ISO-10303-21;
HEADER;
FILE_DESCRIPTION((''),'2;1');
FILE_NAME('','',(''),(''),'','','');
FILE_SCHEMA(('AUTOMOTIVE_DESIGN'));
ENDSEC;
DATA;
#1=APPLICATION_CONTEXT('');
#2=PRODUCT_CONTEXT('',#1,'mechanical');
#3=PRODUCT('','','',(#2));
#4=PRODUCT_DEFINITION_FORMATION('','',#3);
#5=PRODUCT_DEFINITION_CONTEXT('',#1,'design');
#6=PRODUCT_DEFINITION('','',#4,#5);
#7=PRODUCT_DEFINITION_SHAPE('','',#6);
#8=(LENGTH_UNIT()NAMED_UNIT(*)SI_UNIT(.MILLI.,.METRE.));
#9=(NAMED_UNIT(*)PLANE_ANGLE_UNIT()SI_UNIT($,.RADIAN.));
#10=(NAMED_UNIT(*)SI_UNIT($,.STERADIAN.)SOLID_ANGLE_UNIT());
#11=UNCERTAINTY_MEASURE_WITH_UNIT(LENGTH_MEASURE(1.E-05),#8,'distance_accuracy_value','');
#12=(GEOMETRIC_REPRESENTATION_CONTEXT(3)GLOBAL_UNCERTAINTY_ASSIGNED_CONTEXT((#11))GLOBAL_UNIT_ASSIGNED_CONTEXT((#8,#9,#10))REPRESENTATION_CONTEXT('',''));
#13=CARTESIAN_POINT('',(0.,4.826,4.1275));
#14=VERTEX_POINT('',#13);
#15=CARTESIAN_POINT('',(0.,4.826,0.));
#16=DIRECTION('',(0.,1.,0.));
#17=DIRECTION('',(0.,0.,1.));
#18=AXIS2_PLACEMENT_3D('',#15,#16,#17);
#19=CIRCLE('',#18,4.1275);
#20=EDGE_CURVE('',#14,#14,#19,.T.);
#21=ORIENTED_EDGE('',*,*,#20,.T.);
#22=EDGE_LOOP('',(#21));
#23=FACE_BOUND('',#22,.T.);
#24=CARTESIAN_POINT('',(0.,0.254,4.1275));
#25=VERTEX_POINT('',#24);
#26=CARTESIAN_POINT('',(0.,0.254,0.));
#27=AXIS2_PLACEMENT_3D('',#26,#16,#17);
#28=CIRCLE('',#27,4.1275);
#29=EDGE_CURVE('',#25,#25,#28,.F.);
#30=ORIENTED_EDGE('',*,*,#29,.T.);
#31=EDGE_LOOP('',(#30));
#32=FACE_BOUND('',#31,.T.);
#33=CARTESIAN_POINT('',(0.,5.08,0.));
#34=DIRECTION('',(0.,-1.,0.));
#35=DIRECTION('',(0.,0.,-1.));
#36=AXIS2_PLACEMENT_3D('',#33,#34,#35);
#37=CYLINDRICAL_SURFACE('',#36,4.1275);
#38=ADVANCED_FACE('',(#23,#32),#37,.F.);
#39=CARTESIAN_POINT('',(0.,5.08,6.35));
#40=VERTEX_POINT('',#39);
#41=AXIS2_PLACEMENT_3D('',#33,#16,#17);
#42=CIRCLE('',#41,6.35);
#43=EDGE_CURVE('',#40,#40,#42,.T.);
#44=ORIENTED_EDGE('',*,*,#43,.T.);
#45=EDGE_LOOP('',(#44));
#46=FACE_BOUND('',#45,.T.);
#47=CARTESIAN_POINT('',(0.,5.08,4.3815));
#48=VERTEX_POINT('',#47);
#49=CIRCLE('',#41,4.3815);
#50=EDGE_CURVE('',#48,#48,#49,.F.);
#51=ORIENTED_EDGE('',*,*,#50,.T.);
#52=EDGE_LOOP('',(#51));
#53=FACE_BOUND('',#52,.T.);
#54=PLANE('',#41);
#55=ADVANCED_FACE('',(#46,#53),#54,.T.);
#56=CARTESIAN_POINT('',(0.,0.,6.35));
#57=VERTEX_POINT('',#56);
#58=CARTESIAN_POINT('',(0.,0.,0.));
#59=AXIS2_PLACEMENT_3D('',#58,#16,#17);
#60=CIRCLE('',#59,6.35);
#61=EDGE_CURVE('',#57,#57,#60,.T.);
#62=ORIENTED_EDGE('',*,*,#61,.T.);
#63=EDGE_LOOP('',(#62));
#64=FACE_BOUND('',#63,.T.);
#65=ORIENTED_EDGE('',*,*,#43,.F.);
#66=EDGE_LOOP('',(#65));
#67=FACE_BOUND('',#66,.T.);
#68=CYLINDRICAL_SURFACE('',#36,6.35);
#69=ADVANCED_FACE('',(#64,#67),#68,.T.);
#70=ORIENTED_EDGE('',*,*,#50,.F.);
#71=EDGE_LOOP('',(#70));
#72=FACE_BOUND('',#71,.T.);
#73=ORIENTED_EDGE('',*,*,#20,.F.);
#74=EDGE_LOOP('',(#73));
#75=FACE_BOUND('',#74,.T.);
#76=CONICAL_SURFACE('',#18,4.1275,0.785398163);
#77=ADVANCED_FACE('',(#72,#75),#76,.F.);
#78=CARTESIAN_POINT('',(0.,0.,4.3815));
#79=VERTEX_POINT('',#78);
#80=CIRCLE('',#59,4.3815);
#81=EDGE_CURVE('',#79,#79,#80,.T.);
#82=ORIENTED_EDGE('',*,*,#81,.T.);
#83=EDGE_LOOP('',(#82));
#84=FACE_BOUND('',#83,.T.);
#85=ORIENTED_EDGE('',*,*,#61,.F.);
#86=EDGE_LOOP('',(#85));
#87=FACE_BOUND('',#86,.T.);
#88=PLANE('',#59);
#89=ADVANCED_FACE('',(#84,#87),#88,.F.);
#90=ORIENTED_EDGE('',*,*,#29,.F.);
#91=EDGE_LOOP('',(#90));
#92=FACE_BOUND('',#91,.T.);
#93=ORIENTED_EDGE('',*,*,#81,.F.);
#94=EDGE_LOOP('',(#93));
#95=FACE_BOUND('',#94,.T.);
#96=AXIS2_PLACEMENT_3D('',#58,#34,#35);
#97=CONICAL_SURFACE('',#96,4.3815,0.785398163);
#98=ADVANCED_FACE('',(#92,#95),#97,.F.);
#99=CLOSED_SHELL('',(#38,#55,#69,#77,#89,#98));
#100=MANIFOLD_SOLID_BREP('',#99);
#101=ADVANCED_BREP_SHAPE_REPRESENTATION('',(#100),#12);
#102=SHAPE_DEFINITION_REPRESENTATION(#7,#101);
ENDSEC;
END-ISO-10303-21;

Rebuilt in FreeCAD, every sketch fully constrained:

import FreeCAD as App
import Part
import Sketcher

V = App.Vector
Q = App.Units.Quantity


def edges_at(feature, points):
    """Names of the edges that pass closest to the given points."""
    edges = feature.Shape.Edges
    near = lambda p: min(range(len(edges)), key=lambda i: edges[i].distToShape(Part.Vertex(*p))[0])
    return sorted({f"Edge{near(p) + 1}" for p in points})

doc = App.newDocument("Part")
body = doc.addObject("PartDesign::Body", "Body")

# Sketch on XZ plane
sketch1 = body.newObject("Sketcher::SketchObject", "Sketch")
sketch1.AttachmentSupport = (doc.getObject("XZ_Plane"), [""])
sketch1.MapMode = "FlatFace"
sketch1.addGeometry(Part.Circle(V(0, 0, 0), V(0, 0, 1), 6.3), False)
sketch1.addGeometry(Part.Circle(V(0, 0, 0), V(0, 0, 1), 4.1), False)
sketch1.addConstraint(Sketcher.Constraint("Coincident", 0, 3, -1, 1))
sketch1.addConstraint(Sketcher.Constraint("Coincident", 1, 3, -1, 1))
sketch1.addConstraint(Sketcher.Constraint("Diameter", 0, Q("0.5 in")))
sketch1.addConstraint(Sketcher.Constraint("Diameter", 1, Q("0.325 in")))
pad1 = body.newObject("PartDesign::Pad", "Pad")
pad1.Profile = sketch1
pad1.Length = Q("0.2 in")
pad1.Reversed = True
doc.recompute()

chamfer = body.newObject("PartDesign::Chamfer", "Chamfer")
chamfer.Base = (pad1, edges_at(pad1, [(-4.128, 0, 0), (-4.128, 5.08, 0)]))
chamfer.Size = Q("0.01 in")

doc.recompute()
